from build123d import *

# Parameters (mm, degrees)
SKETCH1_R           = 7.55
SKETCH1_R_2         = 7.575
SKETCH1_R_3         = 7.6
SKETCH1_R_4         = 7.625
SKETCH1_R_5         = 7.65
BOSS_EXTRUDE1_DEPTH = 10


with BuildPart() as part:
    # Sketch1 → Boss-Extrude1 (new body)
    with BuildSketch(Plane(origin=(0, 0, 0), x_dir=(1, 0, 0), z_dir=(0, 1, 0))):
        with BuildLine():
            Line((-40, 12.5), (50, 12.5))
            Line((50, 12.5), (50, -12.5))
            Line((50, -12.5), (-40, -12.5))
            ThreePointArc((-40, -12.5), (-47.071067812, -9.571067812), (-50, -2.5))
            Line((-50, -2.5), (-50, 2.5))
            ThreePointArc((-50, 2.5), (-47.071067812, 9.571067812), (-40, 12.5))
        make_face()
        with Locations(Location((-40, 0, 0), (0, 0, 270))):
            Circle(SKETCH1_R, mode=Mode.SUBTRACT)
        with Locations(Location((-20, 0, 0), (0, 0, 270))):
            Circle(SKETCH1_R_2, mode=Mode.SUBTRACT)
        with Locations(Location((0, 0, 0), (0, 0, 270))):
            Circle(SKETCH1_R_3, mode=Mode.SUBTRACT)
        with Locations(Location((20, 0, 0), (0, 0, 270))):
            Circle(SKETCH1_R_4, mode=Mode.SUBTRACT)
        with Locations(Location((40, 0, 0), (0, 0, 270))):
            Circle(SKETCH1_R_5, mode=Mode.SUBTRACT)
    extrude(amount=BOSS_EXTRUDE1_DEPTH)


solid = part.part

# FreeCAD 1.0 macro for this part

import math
import FreeCAD as App
import Part
import Sketcher

V = App.Vector

doc = App.newDocument("Part")
body = doc.addObject("PartDesign::Body", "Body")

# Sketch on XZ plane
sketch1 = doc.addObject("Sketcher::SketchObject", "Sketch")
body.addObject(sketch1)
sketch1.AttachmentSupport = (doc.XZ_Plane, [""])
sketch1.MapMode = "FlatFace"
sketch1.addGeometry([
    Part.LineSegment(V(50, -12, 0), V(-40, -12, 0)),  # 0
    Part.ArcOfCircle(Part.Circle(V(-40, -2, 0), V(0, 0, 1), 10), math.radians(180), math.radians(270)),  # 1
    Part.LineSegment(V(-50, -2, 0), V(-50, 2, 0)),  # 2
    Part.ArcOfCircle(Part.Circle(V(-40, 2, 0), V(0, 0, 1), 10), math.radians(90), math.radians(180)),  # 3
    Part.LineSegment(V(-40, 12, 0), V(50, 12, 0)),  # 4
    Part.LineSegment(V(50, 12, 0), V(50, -12, 0)),  # 5
    Part.Circle(V(40, 0, 0), V(0, 0, 1), 8),  # 6
    Part.Circle(V(20, 0, 0), V(0, 0, 1), 8),  # 7
    Part.Circle(V(0, 0, 0), V(0, 0, 1), 8),  # 8
    Part.Circle(V(-20, 0, 0), V(0, 0, 1), 8),  # 9
    Part.Circle(V(-40, 0, 0), V(0, 0, 1), 8),  # 10
], False)
sketch1.addConstraint([
    Sketcher.Constraint("Tangent", 0, 2, 1, 2),
    Sketcher.Constraint("Tangent", 1, 1, 2, 1),
    Sketcher.Constraint("Tangent", 2, 2, 3, 2),
    Sketcher.Constraint("Tangent", 3, 1, 4, 1),
    Sketcher.Constraint("Coincident", 4, 2, 5, 1),
    Sketcher.Constraint("Coincident", 5, 2, 0, 1),
    Sketcher.Constraint("Horizontal", 0),
    Sketcher.Constraint("Vertical", 2),
    Sketcher.Constraint("Horizontal", 4),
    Sketcher.Constraint("Vertical", 5),
    Sketcher.Constraint("Coincident", 8, 3, -1, 1),
    Sketcher.Constraint("Equal", 1, 3),
    Sketcher.Constraint("Symmetric", 7, 3, 9, 3, -1, 1),
    Sketcher.Constraint("Symmetric", 6, 3, 10, 3, -1, 1),
    Sketcher.Constraint("PointOnObject", 6, 3, -1),
    Sketcher.Constraint("PointOnObject", 7, 3, -1),
    Sketcher.Constraint("Vertical", 3, 3, 10, 3),
    Sketcher.Constraint("Radius", 1, 10.0),
    Sketcher.Constraint("Diameter", 6, 15.3),
    Sketcher.Constraint("Diameter", 8, 15.2),
    Sketcher.Constraint("Diameter", 10, 15.1),
    Sketcher.Constraint("Diameter", 7, 15.25),
    Sketcher.Constraint("Diameter", 9, 15.15),
    Sketcher.Constraint("DistanceX", 0, 2, 0, 1, 90.0),
    Sketcher.Constraint("DistanceY", 2, 1, 2, 2, 5.0),
    Sketcher.Constraint("DistanceX", 1, 3, -1, 1, 40.0),
    Sketcher.Constraint("DistanceX", -1, 1, 7, 3, 20.0),
    Sketcher.Constraint("DistanceY", 1, 3, -1, 1, 2.5),
])
pad1 = doc.addObject("PartDesign::Pad", "Pad")
body.addObject(pad1)
pad1.Profile = sketch1
pad1.Length = 10
pad1.Reversed = True

doc.recompute()
